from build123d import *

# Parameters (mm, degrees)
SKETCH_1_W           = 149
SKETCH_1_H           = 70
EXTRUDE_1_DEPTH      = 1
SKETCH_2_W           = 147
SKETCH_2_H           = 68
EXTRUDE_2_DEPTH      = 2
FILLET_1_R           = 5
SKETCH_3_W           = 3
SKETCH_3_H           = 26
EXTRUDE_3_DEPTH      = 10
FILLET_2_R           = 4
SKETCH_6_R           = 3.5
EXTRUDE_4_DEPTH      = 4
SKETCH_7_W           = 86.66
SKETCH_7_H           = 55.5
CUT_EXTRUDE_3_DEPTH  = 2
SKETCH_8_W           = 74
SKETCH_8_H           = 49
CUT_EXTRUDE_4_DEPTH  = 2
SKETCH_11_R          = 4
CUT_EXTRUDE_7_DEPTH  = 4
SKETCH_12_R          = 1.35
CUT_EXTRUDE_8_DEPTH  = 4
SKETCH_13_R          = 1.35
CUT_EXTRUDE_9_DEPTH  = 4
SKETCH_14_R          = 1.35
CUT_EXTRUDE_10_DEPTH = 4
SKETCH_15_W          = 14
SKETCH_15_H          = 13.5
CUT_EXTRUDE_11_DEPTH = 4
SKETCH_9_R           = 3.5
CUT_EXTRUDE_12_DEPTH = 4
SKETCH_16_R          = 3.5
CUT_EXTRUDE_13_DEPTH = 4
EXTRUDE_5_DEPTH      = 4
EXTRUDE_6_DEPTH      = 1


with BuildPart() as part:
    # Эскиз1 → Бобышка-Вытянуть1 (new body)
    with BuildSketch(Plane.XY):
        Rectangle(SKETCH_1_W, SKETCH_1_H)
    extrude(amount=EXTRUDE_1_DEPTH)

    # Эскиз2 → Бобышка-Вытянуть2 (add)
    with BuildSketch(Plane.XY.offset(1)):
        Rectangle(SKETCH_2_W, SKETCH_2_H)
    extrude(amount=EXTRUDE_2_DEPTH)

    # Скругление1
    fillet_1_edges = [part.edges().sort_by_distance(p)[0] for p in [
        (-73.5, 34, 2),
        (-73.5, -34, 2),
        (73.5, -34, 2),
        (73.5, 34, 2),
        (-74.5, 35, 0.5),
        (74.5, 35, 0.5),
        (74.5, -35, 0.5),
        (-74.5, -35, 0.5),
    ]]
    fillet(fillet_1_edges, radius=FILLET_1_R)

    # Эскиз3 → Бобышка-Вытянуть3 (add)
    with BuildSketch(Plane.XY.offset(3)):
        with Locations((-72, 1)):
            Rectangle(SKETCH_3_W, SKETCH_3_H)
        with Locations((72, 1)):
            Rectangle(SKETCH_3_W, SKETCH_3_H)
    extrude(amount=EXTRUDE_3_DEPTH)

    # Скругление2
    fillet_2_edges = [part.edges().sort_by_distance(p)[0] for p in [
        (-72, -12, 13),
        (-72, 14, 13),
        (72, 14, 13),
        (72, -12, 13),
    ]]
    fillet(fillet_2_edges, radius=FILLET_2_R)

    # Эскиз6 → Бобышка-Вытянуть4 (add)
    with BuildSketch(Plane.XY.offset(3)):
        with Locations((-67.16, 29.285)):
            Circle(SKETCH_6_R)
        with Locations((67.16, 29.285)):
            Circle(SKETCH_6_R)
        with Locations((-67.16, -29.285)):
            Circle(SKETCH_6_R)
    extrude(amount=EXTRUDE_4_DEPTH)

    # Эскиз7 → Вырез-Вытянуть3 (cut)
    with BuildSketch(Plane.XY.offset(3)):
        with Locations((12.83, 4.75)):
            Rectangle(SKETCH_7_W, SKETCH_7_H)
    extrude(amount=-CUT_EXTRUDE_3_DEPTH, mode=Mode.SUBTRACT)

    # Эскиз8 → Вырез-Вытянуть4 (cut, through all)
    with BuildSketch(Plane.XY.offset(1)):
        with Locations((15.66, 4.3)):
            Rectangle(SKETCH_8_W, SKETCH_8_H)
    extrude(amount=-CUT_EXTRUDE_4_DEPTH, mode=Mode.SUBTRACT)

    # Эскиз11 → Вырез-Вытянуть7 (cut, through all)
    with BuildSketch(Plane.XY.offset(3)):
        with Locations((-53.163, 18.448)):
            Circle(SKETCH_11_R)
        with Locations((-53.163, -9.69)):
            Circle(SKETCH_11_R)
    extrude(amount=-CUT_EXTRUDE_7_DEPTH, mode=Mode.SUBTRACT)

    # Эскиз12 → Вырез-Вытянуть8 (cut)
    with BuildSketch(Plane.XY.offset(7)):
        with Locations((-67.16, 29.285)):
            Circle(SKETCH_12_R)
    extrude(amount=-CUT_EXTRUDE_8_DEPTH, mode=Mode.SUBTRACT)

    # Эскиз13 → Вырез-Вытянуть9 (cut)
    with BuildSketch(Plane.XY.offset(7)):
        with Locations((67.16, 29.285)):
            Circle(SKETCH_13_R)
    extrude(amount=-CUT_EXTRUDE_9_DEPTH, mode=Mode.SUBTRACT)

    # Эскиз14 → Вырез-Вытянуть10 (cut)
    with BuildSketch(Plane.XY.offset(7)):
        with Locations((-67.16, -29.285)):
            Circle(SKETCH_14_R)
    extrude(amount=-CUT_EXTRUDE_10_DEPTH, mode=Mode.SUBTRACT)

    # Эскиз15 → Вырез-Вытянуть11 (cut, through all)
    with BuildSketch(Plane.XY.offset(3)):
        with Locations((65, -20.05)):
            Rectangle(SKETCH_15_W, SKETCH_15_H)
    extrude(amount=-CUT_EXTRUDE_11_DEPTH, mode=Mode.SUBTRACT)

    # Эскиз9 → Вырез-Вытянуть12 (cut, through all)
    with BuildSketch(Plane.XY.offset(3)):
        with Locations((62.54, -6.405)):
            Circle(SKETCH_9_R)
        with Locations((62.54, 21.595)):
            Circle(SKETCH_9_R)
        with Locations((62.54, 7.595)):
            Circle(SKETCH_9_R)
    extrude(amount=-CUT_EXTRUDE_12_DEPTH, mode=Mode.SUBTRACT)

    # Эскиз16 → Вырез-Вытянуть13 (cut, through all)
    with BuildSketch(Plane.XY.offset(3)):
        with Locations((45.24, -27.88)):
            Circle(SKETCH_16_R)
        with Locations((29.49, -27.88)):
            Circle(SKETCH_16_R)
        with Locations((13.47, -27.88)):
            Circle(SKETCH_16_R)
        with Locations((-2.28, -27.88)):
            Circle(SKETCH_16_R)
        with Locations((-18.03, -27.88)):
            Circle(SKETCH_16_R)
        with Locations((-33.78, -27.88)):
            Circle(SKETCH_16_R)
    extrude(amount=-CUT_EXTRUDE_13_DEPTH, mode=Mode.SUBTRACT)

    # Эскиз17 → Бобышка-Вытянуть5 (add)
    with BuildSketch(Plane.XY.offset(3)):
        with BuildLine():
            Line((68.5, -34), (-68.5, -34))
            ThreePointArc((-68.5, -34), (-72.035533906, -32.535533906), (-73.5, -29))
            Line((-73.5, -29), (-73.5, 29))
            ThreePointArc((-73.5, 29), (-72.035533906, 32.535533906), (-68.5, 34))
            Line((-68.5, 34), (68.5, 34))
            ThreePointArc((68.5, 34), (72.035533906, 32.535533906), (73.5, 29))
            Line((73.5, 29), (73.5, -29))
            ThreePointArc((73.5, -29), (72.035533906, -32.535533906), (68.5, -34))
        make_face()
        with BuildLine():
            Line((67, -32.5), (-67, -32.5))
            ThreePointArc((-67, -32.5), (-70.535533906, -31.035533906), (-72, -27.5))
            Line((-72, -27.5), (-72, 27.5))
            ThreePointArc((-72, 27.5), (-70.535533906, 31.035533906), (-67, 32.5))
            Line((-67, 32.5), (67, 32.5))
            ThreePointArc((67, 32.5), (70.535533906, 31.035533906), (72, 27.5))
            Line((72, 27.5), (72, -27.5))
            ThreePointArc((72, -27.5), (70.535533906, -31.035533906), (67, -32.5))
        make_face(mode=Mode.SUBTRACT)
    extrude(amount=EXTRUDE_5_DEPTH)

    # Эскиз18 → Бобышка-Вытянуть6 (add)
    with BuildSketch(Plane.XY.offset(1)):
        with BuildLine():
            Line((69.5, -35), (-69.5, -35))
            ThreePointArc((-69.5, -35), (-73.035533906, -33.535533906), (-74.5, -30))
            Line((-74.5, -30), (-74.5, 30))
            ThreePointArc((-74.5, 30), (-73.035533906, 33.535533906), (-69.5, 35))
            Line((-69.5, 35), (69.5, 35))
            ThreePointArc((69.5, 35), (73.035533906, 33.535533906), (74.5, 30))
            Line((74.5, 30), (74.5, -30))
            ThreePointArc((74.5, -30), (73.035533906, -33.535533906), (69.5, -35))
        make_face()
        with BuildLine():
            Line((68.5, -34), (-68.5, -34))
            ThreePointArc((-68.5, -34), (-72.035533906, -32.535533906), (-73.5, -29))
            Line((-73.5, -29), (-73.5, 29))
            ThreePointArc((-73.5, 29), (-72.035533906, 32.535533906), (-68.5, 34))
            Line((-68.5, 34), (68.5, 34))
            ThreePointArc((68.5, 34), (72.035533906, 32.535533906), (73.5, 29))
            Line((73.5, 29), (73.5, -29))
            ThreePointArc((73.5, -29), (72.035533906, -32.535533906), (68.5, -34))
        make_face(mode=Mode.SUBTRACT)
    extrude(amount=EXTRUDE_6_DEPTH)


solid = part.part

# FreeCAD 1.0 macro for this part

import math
import FreeCAD as App
import Part
import Sketcher
from FreeCAD import Vector
Q = App.Units.Quantity


def edges_at(feature, points):
    """Names of the edges that pass closest to the given points."""
    edges = feature.Shape.Edges
    near = lambda p: min(range(len(edges)), key=lambda i: edges[i].distToShape(Part.Vertex(*p))[0])
    return sorted({f"Edge{near(p) + 1}" for p in points})

doc = App.newDocument("Part")
body = doc.addObject("PartDesign::Body", "Body")

sketch1 = body.newObject("Sketcher::SketchObject", "Sketch")
sketch1.AttachmentSupport = (doc.getObject("XY_Plane"), [""])
sketch1.MapMode = "FlatFace"
sketch1.addGeometry([
    Part.LineSegment(Vector(-74.5, 35, 0), Vector(-74.5, -35, 0)),
    Part.LineSegment(Vector(-74.5, -35, 0), Vector(74.5, -35, 0)),
    Part.LineSegment(Vector(74.5, -35, 0), Vector(74.5, 35, 0)),
    Part.LineSegment(Vector(74.5, 35, 0), Vector(-74.5, 35, 0)),
], False)
sketch1.addConstraint([
    Sketcher.Constraint("Coincident", 0, 2, 1, 1),
    Sketcher.Constraint("Coincident", 1, 2, 2, 1),
    Sketcher.Constraint("Coincident", 2, 2, 3, 1),
    Sketcher.Constraint("Coincident", 3, 2, 0, 1),
    Sketcher.Constraint("Vertical", 0),
    Sketcher.Constraint("Horizontal", 1),
    Sketcher.Constraint("Vertical", 2),
    Sketcher.Constraint("Horizontal", 3),
    Sketcher.Constraint("Symmetric", 0, 2, 2, 2, -1, 1),
    Sketcher.Constraint("DistanceX", 1, 1, 1, 2, Q("149 mm")),
    Sketcher.Constraint("DistanceY", 0, 2, 0, 1, Q("70 mm")),
])
pad1 = body.newObject("PartDesign::Pad", "Pad")
pad1.Profile = sketch1
pad1.Length = 1

sketch2 = body.newObject("Sketcher::SketchObject", "Sketch001")
sketch2.AttachmentSupport = (doc.getObject("XY_Plane"), [""])
sketch2.MapMode = "FlatFace"
sketch2.AttachmentOffset = App.Placement(Vector(0, 0, 1), App.Rotation())
sketch2.addGeometry([
    Part.LineSegment(Vector(-73.5, 34, 0), Vector(-73.5, -34, 0)),
    Part.LineSegment(Vector(-73.5, -34, 0), Vector(73.5, -34, 0)),
    Part.LineSegment(Vector(73.5, -34, 0), Vector(73.5, 34, 0)),
    Part.LineSegment(Vector(73.5, 34, 0), Vector(-73.5, 34, 0)),
], False)
sketch2.addConstraint([
    Sketcher.Constraint("Coincident", 0, 2, 1, 1),
    Sketcher.Constraint("Coincident", 1, 2, 2, 1),
    Sketcher.Constraint("Coincident", 2, 2, 3, 1),
    Sketcher.Constraint("Coincident", 3, 2, 0, 1),
    Sketcher.Constraint("Vertical", 0),
    Sketcher.Constraint("Horizontal", 1),
    Sketcher.Constraint("Vertical", 2),
    Sketcher.Constraint("Horizontal", 3),
    Sketcher.Constraint("Symmetric", 0, 2, 2, 2, -1, 1),
    Sketcher.Constraint("DistanceX", 1, 1, 1, 2, Q("147 mm")),
    Sketcher.Constraint("DistanceY", 0, 2, 0, 1, Q("68 mm")),
])
pad2 = body.newObject("PartDesign::Pad", "Pad001")
pad2.Profile = sketch2
pad2.Length = 2
doc.recompute()

fillet = body.newObject("PartDesign::Fillet", "Fillet")
fillet.Base = (pad2, edges_at(pad2, [
    (-73.5, 34, 2),
    (-73.5, -34, 2),
    (73.5, -34, 2),
    (73.5, 34, 2),
    (-74.5, 35, 0.5),
    (74.5, 35, 0.5),
    (74.5, -35, 0.5),
    (-74.5, -35, 0.5),
]))
fillet.Radius = 5

sketch3 = body.newObject("Sketcher::SketchObject", "Sketch002")
sketch3.AttachmentSupport = (doc.getObject("XY_Plane"), [""])
sketch3.MapMode = "FlatFace"
sketch3.AttachmentOffset = App.Placement(Vector(0, 0, 3), App.Rotation())
sketch3.addGeometry([
    Part.LineSegment(Vector(-73.5, 14, 0), Vector(-73.5, -12, 0)),
    Part.LineSegment(Vector(-73.5, -12, 0), Vector(-70.5, -12, 0)),
    Part.LineSegment(Vector(-70.5, -12, 0), Vector(-70.5, 14, 0)),
    Part.LineSegment(Vector(-70.5, 14, 0), Vector(-73.5, 14, 0)),
    Part.LineSegment(Vector(70.5, 14, 0), Vector(70.5, -12, 0)),
    Part.LineSegment(Vector(70.5, -12, 0), Vector(73.5, -12, 0)),
    Part.LineSegment(Vector(73.5, -12, 0), Vector(73.5, 14, 0)),
    Part.LineSegment(Vector(73.5, 14, 0), Vector(70.5, 14, 0)),
], False)
sketch3.addConstraint([
    Sketcher.Constraint("Coincident", 0, 2, 1, 1),
    Sketcher.Constraint("Coincident", 1, 2, 2, 1),
    Sketcher.Constraint("Coincident", 2, 2, 3, 1),
    Sketcher.Constraint("Coincident", 3, 2, 0, 1),
    Sketcher.Constraint("Coincident", 4, 2, 5, 1),
    Sketcher.Constraint("Coincident", 5, 2, 6, 1),
    Sketcher.Constraint("Coincident", 6, 2, 7, 1),
    Sketcher.Constraint("Coincident", 7, 2, 4, 1),
    Sketcher.Constraint("Vertical", 0),
    Sketcher.Constraint("Horizontal", 1),
    Sketcher.Constraint("Vertical", 2),
    Sketcher.Constraint("Horizontal", 3),
    Sketcher.Constraint("Vertical", 4),
    Sketcher.Constraint("Horizontal", 5),
    Sketcher.Constraint("Vertical", 6),
    Sketcher.Constraint("Horizontal", 7),
    Sketcher.Constraint("Symmetric", 1, 2, 4, 2, -2),
    Sketcher.Constraint("Symmetric", 3, 2, 6, 2, -2),
    Sketcher.Constraint("DistanceX", 1, 1, 1, 2, Q("3 mm")),
    Sketcher.Constraint("DistanceY", 0, 2, 0, 1, Q("26 mm")),
    Sketcher.Constraint("DistanceY", 0, 2, -1, 1, Q("12 mm")),
    Sketcher.Constraint("DistanceX", 1, 2, 4, 2, Q("141 mm")),
])
pad3 = body.newObject("PartDesign::Pad", "Pad002")
pad3.Profile = sketch3
pad3.Length = 10
doc.recompute()

fillet2 = body.newObject("PartDesign::Fillet", "Fillet001")
fillet2.Base = (pad3, edges_at(pad3, [
    (-72, -12, 13),
    (-72, 14, 13),
    (72, 14, 13),
    (72, -12, 13),
]))
fillet2.Radius = 4

sketch4 = body.newObject("Sketcher::SketchObject", "Sketch003")
sketch4.AttachmentSupport = (doc.getObject("XY_Plane"), [""])
sketch4.MapMode = "FlatFace"
sketch4.AttachmentOffset = App.Placement(Vector(0, 0, 3), App.Rotation())
sketch4.addGeometry([
    Part.Circle(Vector(-67.16, 29.285, 0), Vector(0, 0, 1), 3.5),
    Part.Circle(Vector(67.16, 29.285, 0), Vector(0, 0, 1), 3.5),
    Part.Circle(Vector(-67.16, -29.285, 0), Vector(0, 0, 1), 3.5),
], False)
sketch4.addConstraint([
    Sketcher.Constraint("Equal", 0, 1),
    Sketcher.Constraint("Equal", 1, 2),
    Sketcher.Constraint("Symmetric", 1, 3, 2, 3, -1, 1),
    Sketcher.Constraint("Symmetric", 0, 3, 1, 3, -2),
    Sketcher.Constraint("Diameter", 0, Q("7 mm")),
    Sketcher.Constraint("DistanceX", 0, 3, -1, 1, Q("67.16 mm")),
    Sketcher.Constraint("DistanceY", 2, 3, 0, 3, Q("58.57 mm")),
])
pad4 = body.newObject("PartDesign::Pad", "Pad003")
pad4.Profile = sketch4
pad4.Length = 4

sketch5 = body.newObject("Sketcher::SketchObject", "Sketch004")
sketch5.AttachmentSupport = (doc.getObject("XY_Plane"), [""])
sketch5.MapMode = "FlatFace"
sketch5.AttachmentOffset = App.Placement(Vector(0, 0, 3), App.Rotation())
sketch5.addGeometry([
    Part.LineSegment(Vector(-30.5, 32.5, 0), Vector(-30.5, -23, 0)),
    Part.LineSegment(Vector(-30.5, -23, 0), Vector(56.16, -23, 0)),
    Part.LineSegment(Vector(56.16, -23, 0), Vector(56.16, 32.5, 0)),
    Part.LineSegment(Vector(56.16, 32.5, 0), Vector(-30.5, 32.5, 0)),
], False)
sketch5.addConstraint([
    Sketcher.Constraint("Coincident", 0, 2, 1, 1),
    Sketcher.Constraint("Coincident", 1, 2, 2, 1),
    Sketcher.Constraint("Coincident", 2, 2, 3, 1),
    Sketcher.Constraint("Coincident", 3, 2, 0, 1),
    Sketcher.Constraint("Vertical", 0),
    Sketcher.Constraint("Horizontal", 1),
    Sketcher.Constraint("Vertical", 2),
    Sketcher.Constraint("Horizontal", 3),
    Sketcher.Constraint("DistanceY", 0, 2, 0, 1, Q("55.5 mm")),
    Sketcher.Constraint("DistanceY", 0, 2, -1, 1, Q("23 mm")),
    Sketcher.Constraint("DistanceX", 1, 1, 1, 2, Q("86.66 mm")),
    Sketcher.Constraint("DistanceX", 0, 2, -1, 1, Q("30.5 mm")),
])
pocket1 = body.newObject("PartDesign::Pocket", "Pocket")
pocket1.Profile = sketch5
pocket1.Length = 2

sketch6 = body.newObject("Sketcher::SketchObject", "Sketch005")
sketch6.AttachmentSupport = (doc.getObject("XY_Plane"), [""])
sketch6.MapMode = "FlatFace"
sketch6.AttachmentOffset = App.Placement(Vector(0, 0, 1), App.Rotation())
sketch6.addGeometry([
    Part.LineSegment(Vector(-21.34, 28.8, 0), Vector(-21.34, -20.2, 0)),
    Part.LineSegment(Vector(-21.34, -20.2, 0), Vector(52.66, -20.2, 0)),
    Part.LineSegment(Vector(52.66, -20.2, 0), Vector(52.66, 28.8, 0)),
    Part.LineSegment(Vector(52.66, 28.8, 0), Vector(-21.34, 28.8, 0)),
], False)
sketch6.addConstraint([
    Sketcher.Constraint("Coincident", 0, 2, 1, 1),
    Sketcher.Constraint("Coincident", 1, 2, 2, 1),
    Sketcher.Constraint("Coincident", 2, 2, 3, 1),
    Sketcher.Constraint("Coincident", 3, 2, 0, 1),
    Sketcher.Constraint("Vertical", 0),
    Sketcher.Constraint("Horizontal", 1),
    Sketcher.Constraint("Vertical", 2),
    Sketcher.Constraint("Horizontal", 3),
    Sketcher.Constraint("DistanceX", 1, 1, 1, 2, Q("74 mm")),
    Sketcher.Constraint("DistanceY", 0, 2, 0, 1, Q("49 mm")),
    Sketcher.Constraint("DistanceY", 0, 2, -1, 1, Q("20.2 mm")),
    Sketcher.Constraint("DistanceX", 0, 2, -1, 1, Q("21.34 mm")),
])
pocket2 = body.newObject("PartDesign::Pocket", "Pocket001")
pocket2.Profile = sketch6
pocket2.Type = "ThroughAll"

sketch7 = body.newObject("Sketcher::SketchObject", "Sketch006")
sketch7.AttachmentSupport = (doc.getObject("XY_Plane"), [""])
sketch7.MapMode = "FlatFace"
sketch7.AttachmentOffset = App.Placement(Vector(0, 0, 3), App.Rotation())
sketch7.addGeometry([
    Part.Circle(Vector(-53.163, 18.448, 0), Vector(0, 0, 1), 4),
    Part.Circle(Vector(-53.163, -9.69, 0), Vector(0, 0, 1), 4),
], False)
sketch7.addConstraint([
    Sketcher.Constraint("Equal", 0, 1),
    Sketcher.Constraint("Vertical", 0, 3, 1, 3),
    Sketcher.Constraint("Diameter", 0, Q("8 mm")),
    Sketcher.Constraint("DistanceY", 1, 3, -1, 1, Q("9.69 mm")),
    Sketcher.Constraint("DistanceX", 0, 3, -1, 1, Q("53.163 mm")),
    Sketcher.Constraint("DistanceY", -1, 1, 0, 3, Q("18.448 mm")),
])
pocket3 = body.newObject("PartDesign::Pocket", "Pocket002")
pocket3.Profile = sketch7
pocket3.Type = "ThroughAll"

sketch8 = body.newObject("Sketcher::SketchObject", "Sketch007")
sketch8.AttachmentSupport = (doc.getObject("XY_Plane"), [""])
sketch8.MapMode = "FlatFace"
sketch8.AttachmentOffset = App.Placement(Vector(0, 0, 7), App.Rotation())
sketch8.addGeometry(Part.Circle(Vector(-67.16, 29.285, 0), Vector(0, 0, 1), 1.35), False)
sketch8.addConstraint([
    Sketcher.Constraint("Diameter", 0, Q("2.7 mm")),
    Sketcher.Constraint("DistanceX", 0, 3, -1, 1, Q("67.16 mm")),
    Sketcher.Constraint("DistanceY", -1, 1, 0, 3, Q("29.285 mm")),
])
pocket4 = body.newObject("PartDesign::Pocket", "Pocket003")
pocket4.Profile = sketch8
pocket4.Length = 4

sketch9 = body.newObject("Sketcher::SketchObject", "Sketch008")
sketch9.AttachmentSupport = (doc.getObject("XY_Plane"), [""])
sketch9.MapMode = "FlatFace"
sketch9.AttachmentOffset = App.Placement(Vector(0, 0, 7), App.Rotation())
sketch9.addGeometry(Part.Circle(Vector(67.16, 29.285, 0), Vector(0, 0, 1), 1.35), False)
sketch9.addConstraint([
    Sketcher.Constraint("Diameter", 0, Q("2.7 mm")),
    Sketcher.Constraint("DistanceX", -1, 1, 0, 3, Q("67.16 mm")),
    Sketcher.Constraint("DistanceY", -1, 1, 0, 3, Q("29.285 mm")),
])
pocket5 = body.newObject("PartDesign::Pocket", "Pocket004")
pocket5.Profile = sketch9
pocket5.Length = 4

sketch10 = body.newObject("Sketcher::SketchObject", "Sketch009")
sketch10.AttachmentSupport = (doc.getObject("XY_Plane"), [""])
sketch10.MapMode = "FlatFace"
sketch10.AttachmentOffset = App.Placement(Vector(0, 0, 7), App.Rotation())
sketch10.addGeometry(Part.Circle(Vector(-67.16, -29.285, 0), Vector(0, 0, 1), 1.35), False)
sketch10.addConstraint([
    Sketcher.Constraint("Diameter", 0, Q("2.7 mm")),
    Sketcher.Constraint("DistanceX", 0, 3, -1, 1, Q("67.16 mm")),
    Sketcher.Constraint("DistanceY", 0, 3, -1, 1, Q("29.285 mm")),
])
pocket6 = body.newObject("PartDesign::Pocket", "Pocket005")
pocket6.Profile = sketch10
pocket6.Length = 4

sketch11 = body.newObject("Sketcher::SketchObject", "Sketch010")
sketch11.AttachmentSupport = (doc.getObject("XY_Plane"), [""])
sketch11.MapMode = "FlatFace"
sketch11.AttachmentOffset = App.Placement(Vector(0, 0, 3), App.Rotation())
sketch11.addGeometry([
    Part.LineSegment(Vector(58, -13.3, 0), Vector(58, -26.8, 0)),
    Part.LineSegment(Vector(58, -26.8, 0), Vector(72, -26.8, 0)),
    Part.LineSegment(Vector(72, -26.8, 0), Vector(72, -13.3, 0)),
    Part.LineSegment(Vector(72, -13.3, 0), Vector(58, -13.3, 0)),
], False)
sketch11.addConstraint([
    Sketcher.Constraint("Coincident", 0, 2, 1, 1),
    Sketcher.Constraint("Coincident", 1, 2, 2, 1),
    Sketcher.Constraint("Coincident", 2, 2, 3, 1),
    Sketcher.Constraint("Coincident", 3, 2, 0, 1),
    Sketcher.Constraint("Vertical", 0),
    Sketcher.Constraint("Horizontal", 1),
    Sketcher.Constraint("Vertical", 2),
    Sketcher.Constraint("Horizontal", 3),
    Sketcher.Constraint("DistanceX", 1, 1, 1, 2, Q("14 mm")),
    Sketcher.Constraint("DistanceY", 0, 2, 0, 1, Q("13.5 mm")),
    Sketcher.Constraint("DistanceX", -1, 1, 0, 2, Q("58 mm")),
    Sketcher.Constraint("DistanceY", 0, 2, -1, 1, Q("26.8 mm")),
])
pocket7 = body.newObject("PartDesign::Pocket", "Pocket006")
pocket7.Profile = sketch11
pocket7.Type = "ThroughAll"

sketch12 = body.newObject("Sketcher::SketchObject", "Sketch011")
sketch12.AttachmentSupport = (doc.getObject("XY_Plane"), [""])
sketch12.MapMode = "FlatFace"
sketch12.AttachmentOffset = App.Placement(Vector(0, 0, 3), App.Rotation())
sketch12.addGeometry([
    Part.Circle(Vector(62.54, -6.405, 0), Vector(0, 0, 1), 3.5),
    Part.Circle(Vector(62.54, 21.595, 0), Vector(0, 0, 1), 3.5),
    Part.Circle(Vector(62.54, 7.595, 0), Vector(0, 0, 1), 3.5),
], False)
sketch12.addConstraint([
    Sketcher.Constraint("Equal", 0, 1),
    Sketcher.Constraint("Equal", 1, 2),
    Sketcher.Constraint("Vertical", 0, 3, 1, 3),
    Sketcher.Constraint("Vertical", 1, 3, 2, 3),
    Sketcher.Constraint("Diameter", 0, Q("7 mm")),
    Sketcher.Constraint("DistanceY", 0, 3, 1, 3, Q("28 mm")),
    Sketcher.Constraint("DistanceY", 0, 3, 2, 3, Q("14 mm")),
    Sketcher.Constraint("DistanceX", -1, 1, 0, 3, Q("62.54 mm")),
    Sketcher.Constraint("DistanceY", 0, 3, -1, 1, Q("6.405 mm")),
])
pocket8 = body.newObject("PartDesign::Pocket", "Pocket007")
pocket8.Profile = sketch12
pocket8.Type = "ThroughAll"

sketch13 = body.newObject("Sketcher::SketchObject", "Sketch012")
sketch13.AttachmentSupport = (doc.getObject("XY_Plane"), [""])
sketch13.MapMode = "FlatFace"
sketch13.AttachmentOffset = App.Placement(Vector(0, 0, 3), App.Rotation())
sketch13.addGeometry([
    Part.Circle(Vector(45.24, -27.88, 0), Vector(0, 0, 1), 3.5),
    Part.Circle(Vector(29.49, -27.88, 0), Vector(0, 0, 1), 3.5),
    Part.Circle(Vector(13.47, -27.88, 0), Vector(0, 0, 1), 3.5),
    Part.Circle(Vector(-2.28, -27.88, 0), Vector(0, 0, 1), 3.5),
    Part.Circle(Vector(-18.03, -27.88, 0), Vector(0, 0, 1), 3.5),
    Part.Circle(Vector(-33.78, -27.88, 0), Vector(0, 0, 1), 3.5),
], False)
sketch13.addConstraint([
    Sketcher.Constraint("Equal", 0, 1),
    Sketcher.Constraint("Equal", 1, 2),
    Sketcher.Constraint("Equal", 2, 3),
    Sketcher.Constraint("Equal", 3, 4),
    Sketcher.Constraint("Equal", 4, 5),
    Sketcher.Constraint("Horizontal", 0, 3, 1, 3),
    Sketcher.Constraint("Horizontal", 1, 3, 2, 3),
    Sketcher.Constraint("Horizontal", 2, 3, 3, 3),
    Sketcher.Constraint("Horizontal", 3, 3, 4, 3),
    Sketcher.Constraint("Horizontal", 4, 3, 5, 3),
    Sketcher.Constraint("Diameter", 0, Q("7 mm")),
    Sketcher.Constraint("DistanceX", 4, 3, 2, 3, Q("31.5 mm")),
    Sketcher.Constraint("DistanceX", 5, 3, 3, 3, Q("31.5 mm")),
    Sketcher.Constraint("DistanceX", -1, 1, 0, 3, Q("45.24 mm")),
    Sketcher.Constraint("DistanceY", 0, 3, -1, 1, Q("27.88 mm")),
    Sketcher.Constraint("DistanceX", -1, 1, 1, 3, Q("29.49 mm")),
    Sketcher.Constraint("DistanceX", -1, 1, 2, 3, Q("13.47 mm")),
    Sketcher.Constraint("DistanceX", 3, 3, -1, 1, Q("2.28 mm")),
])
pocket9 = body.newObject("PartDesign::Pocket", "Pocket008")
pocket9.Profile = sketch13
pocket9.Type = "ThroughAll"

sketch14 = body.newObject("Sketcher::SketchObject", "Sketch013")
sketch14.AttachmentSupport = (doc.getObject("XY_Plane"), [""])
sketch14.MapMode = "FlatFace"
sketch14.AttachmentOffset = App.Placement(Vector(0, 0, 3), App.Rotation())
sketch14.addGeometry([
    Part.LineSegment(Vector(-68.5, -34, 0), Vector(68.5, -34, 0)),
    Part.ArcOfCircle(Part.Circle(Vector(68.5, -29, 0), Vector(0, 0, 1), 5), math.radians(-90), math.radians(0)),
    Part.LineSegment(Vector(73.5, -29, 0), Vector(73.5, 29, 0)),
    Part.ArcOfCircle(Part.Circle(Vector(68.5, 29, 0), Vector(0, 0, 1), 5), math.radians(0), math.radians(90)),
    Part.LineSegment(Vector(68.5, 34, 0), Vector(-68.5, 34, 0)),
    Part.ArcOfCircle(Part.Circle(Vector(-68.5, 29, 0), Vector(0, 0, 1), 5), math.radians(90), math.radians(180)),
    Part.LineSegment(Vector(-73.5, 29, 0), Vector(-73.5, -29, 0)),
    Part.ArcOfCircle(Part.Circle(Vector(-68.5, -29, 0), Vector(0, 0, 1), 5), math.radians(180), math.radians(270)),
    Part.LineSegment(Vector(67, -32.5, 0), Vector(-67, -32.5, 0)),
    Part.ArcOfCircle(Part.Circle(Vector(-67, -27.5, 0), Vector(0, 0, 1), 5), math.radians(180), math.radians(270)),
    Part.LineSegment(Vector(-72, -27.5, 0), Vector(-72, 27.5, 0)),
    Part.ArcOfCircle(Part.Circle(Vector(-67, 27.5, 0), Vector(0, 0, 1), 5), math.radians(90), math.radians(180)),
    Part.LineSegment(Vector(-67, 32.5, 0), Vector(67, 32.5, 0)),
    Part.ArcOfCircle(Part.Circle(Vector(67, 27.5, 0), Vector(0, 0, 1), 5), math.radians(0), math.radians(90)),
    Part.LineSegment(Vector(72, 27.5, 0), Vector(72, -27.5, 0)),
    Part.ArcOfCircle(Part.Circle(Vector(67, -27.5, 0), Vector(0, 0, 1), 5), math.radians(-90), math.radians(0)),
], False)
sketch14.addConstraint([
    Sketcher.Constraint("Tangent", 0, 2, 1, 1),
    Sketcher.Constraint("Tangent", 1, 2, 2, 1),
    Sketcher.Constraint("Tangent", 2, 2, 3, 1),
    Sketcher.Constraint("Tangent", 3, 2, 4, 1),
    Sketcher.Constraint("Tangent", 4, 2, 5, 1),
    Sketcher.Constraint("Tangent", 5, 2, 6, 1),
    Sketcher.Constraint("Tangent", 6, 2, 7, 1),
    Sketcher.Constraint("Tangent", 7, 2, 0, 1),
    Sketcher.Constraint("Tangent", 8, 2, 9, 2),
    Sketcher.Constraint("Tangent", 9, 1, 10, 1),
    Sketcher.Constraint("Tangent", 10, 2, 11, 2),
    Sketcher.Constraint("Tangent", 11, 1, 12, 1),
    Sketcher.Constraint("Tangent", 12, 2, 13, 2),
    Sketcher.Constraint("Tangent", 13, 1, 14, 1),
    Sketcher.Constraint("Tangent", 14, 2, 15, 2),
    Sketcher.Constraint("Tangent", 15, 1, 8, 1),
    Sketcher.Constraint("Horizontal", 0),
    Sketcher.Constraint("Vertical", 2),
    Sketcher.Constraint("Horizontal", 4),
    Sketcher.Constraint("Vertical", 6),
    Sketcher.Constraint("Horizontal", 8),
    Sketcher.Constraint("Vertical", 10),
    Sketcher.Constraint("Horizontal", 12),
    Sketcher.Constraint("Vertical", 14),
    Sketcher.Constraint("Equal", 1, 3),
    Sketcher.Constraint("Equal", 3, 5),
    Sketcher.Constraint("Equal", 5, 7),
    Sketcher.Constraint("Equal", 7, 9),
    Sketcher.Constraint("Equal", 9, 11),
    Sketcher.Constraint("Equal", 11, 13),
    Sketcher.Constraint("Equal", 13, 15),
    Sketcher.Constraint("Symmetric", 1, 3, 5, 3, -1, 1),
    Sketcher.Constraint("Symmetric", 9, 3, 13, 3, -1, 1),
    Sketcher.Constraint("Radius", 1, Q("5 mm")),
    Sketcher.Constraint("DistanceX", 0, 1, 0, 2, Q("137 mm")),
    Sketcher.Constraint("DistanceX", 8, 2, 8, 1, Q("134 mm")),
    Sketcher.Constraint("DistanceY", 2, 1, 2, 2, Q("58 mm")),
    Sketcher.Constraint("DistanceY", 10, 1, 10, 2, Q("55 mm")),
])
pad5 = body.newObject("PartDesign::Pad", "Pad004")
pad5.Profile = sketch14
pad5.Length = 4

sketch15 = body.newObject("Sketcher::SketchObject", "Sketch014")
sketch15.AttachmentSupport = (doc.getObject("XY_Plane"), [""])
sketch15.MapMode = "FlatFace"
sketch15.AttachmentOffset = App.Placement(Vector(0, 0, 1), App.Rotation())
sketch15.addGeometry([
    Part.LineSegment(Vector(-69.5, -35, 0), Vector(69.5, -35, 0)),
    Part.ArcOfCircle(Part.Circle(Vector(69.5, -30, 0), Vector(0, 0, 1), 5), math.radians(-90), math.radians(0)),
    Part.LineSegment(Vector(74.5, -30, 0), Vector(74.5, 30, 0)),
    Part.ArcOfCircle(Part.Circle(Vector(69.5, 30, 0), Vector(0, 0, 1), 5), math.radians(0), math.radians(90)),
    Part.LineSegment(Vector(69.5, 35, 0), Vector(-69.5, 35, 0)),
    Part.ArcOfCircle(Part.Circle(Vector(-69.5, 30, 0), Vector(0, 0, 1), 5), math.radians(90), math.radians(180)),
    Part.LineSegment(Vector(-74.5, 30, 0), Vector(-74.5, -30, 0)),
    Part.ArcOfCircle(Part.Circle(Vector(-69.5, -30, 0), Vector(0, 0, 1), 5), math.radians(180), math.radians(270)),
    Part.LineSegment(Vector(68.5, -34, 0), Vector(-68.5, -34, 0)),
    Part.ArcOfCircle(Part.Circle(Vector(-68.5, -29, 0), Vector(0, 0, 1), 5), math.radians(180), math.radians(270)),
    Part.LineSegment(Vector(-73.5, -29, 0), Vector(-73.5, 29, 0)),
    Part.ArcOfCircle(Part.Circle(Vector(-68.5, 29, 0), Vector(0, 0, 1), 5), math.radians(90), math.radians(180)),
    Part.LineSegment(Vector(-68.5, 34, 0), Vector(68.5, 34, 0)),
    Part.ArcOfCircle(Part.Circle(Vector(68.5, 29, 0), Vector(0, 0, 1), 5), math.radians(0), math.radians(90)),
    Part.LineSegment(Vector(73.5, 29, 0), Vector(73.5, -29, 0)),
    Part.ArcOfCircle(Part.Circle(Vector(68.5, -29, 0), Vector(0, 0, 1), 5), math.radians(-90), math.radians(0)),
], False)
sketch15.addConstraint([
    Sketcher.Constraint("Tangent", 0, 2, 1, 1),
    Sketcher.Constraint("Tangent", 1, 2, 2, 1),
    Sketcher.Constraint("Tangent", 2, 2, 3, 1),
    Sketcher.Constraint("Tangent", 3, 2, 4, 1),
    Sketcher.Constraint("Tangent", 4, 2, 5, 1),
    Sketcher.Constraint("Tangent", 5, 2, 6, 1),
    Sketcher.Constraint("Tangent", 6, 2, 7, 1),
    Sketcher.Constraint("Tangent", 7, 2, 0, 1),
    Sketcher.Constraint("Tangent", 8, 2, 9, 2),
    Sketcher.Constraint("Tangent", 9, 1, 10, 1),
    Sketcher.Constraint("Tangent", 10, 2, 11, 2),
    Sketcher.Constraint("Tangent", 11, 1, 12, 1),
    Sketcher.Constraint("Tangent", 12, 2, 13, 2),
    Sketcher.Constraint("Tangent", 13, 1, 14, 1),
    Sketcher.Constraint("Tangent", 14, 2, 15, 2),
    Sketcher.Constraint("Tangent", 15, 1, 8, 1),
    Sketcher.Constraint("Horizontal", 0),
    Sketcher.Constraint("Vertical", 2),
    Sketcher.Constraint("Horizontal", 4),
    Sketcher.Constraint("Vertical", 6),
    Sketcher.Constraint("Horizontal", 8),
    Sketcher.Constraint("Vertical", 10),
    Sketcher.Constraint("Horizontal", 12),
    Sketcher.Constraint("Vertical", 14),
    Sketcher.Constraint("Equal", 1, 3),
    Sketcher.Constraint("Equal", 3, 5),
    Sketcher.Constraint("Equal", 5, 7),
    Sketcher.Constraint("Equal", 7, 9),
    Sketcher.Constraint("Equal", 9, 11),
    Sketcher.Constraint("Equal", 11, 13),
    Sketcher.Constraint("Equal", 13, 15),
    Sketcher.Constraint("Symmetric", 1, 3, 5, 3, -1, 1),
    Sketcher.Constraint("Symmetric", 9, 3, 13, 3, -1, 1),
    Sketcher.Constraint("Radius", 1, Q("5 mm")),
    Sketcher.Constraint("DistanceX", 0, 1, 0, 2, Q("139 mm")),
    Sketcher.Constraint("DistanceX", 8, 2, 8, 1, Q("137 mm")),
    Sketcher.Constraint("DistanceY", 2, 1, 2, 2, Q("60 mm")),
    Sketcher.Constraint("DistanceY", 10, 1, 10, 2, Q("58 mm")),
])
pad6 = body.newObject("PartDesign::Pad", "Pad005")
pad6.Profile = sketch15
pad6.Length = 1

doc.recompute()
